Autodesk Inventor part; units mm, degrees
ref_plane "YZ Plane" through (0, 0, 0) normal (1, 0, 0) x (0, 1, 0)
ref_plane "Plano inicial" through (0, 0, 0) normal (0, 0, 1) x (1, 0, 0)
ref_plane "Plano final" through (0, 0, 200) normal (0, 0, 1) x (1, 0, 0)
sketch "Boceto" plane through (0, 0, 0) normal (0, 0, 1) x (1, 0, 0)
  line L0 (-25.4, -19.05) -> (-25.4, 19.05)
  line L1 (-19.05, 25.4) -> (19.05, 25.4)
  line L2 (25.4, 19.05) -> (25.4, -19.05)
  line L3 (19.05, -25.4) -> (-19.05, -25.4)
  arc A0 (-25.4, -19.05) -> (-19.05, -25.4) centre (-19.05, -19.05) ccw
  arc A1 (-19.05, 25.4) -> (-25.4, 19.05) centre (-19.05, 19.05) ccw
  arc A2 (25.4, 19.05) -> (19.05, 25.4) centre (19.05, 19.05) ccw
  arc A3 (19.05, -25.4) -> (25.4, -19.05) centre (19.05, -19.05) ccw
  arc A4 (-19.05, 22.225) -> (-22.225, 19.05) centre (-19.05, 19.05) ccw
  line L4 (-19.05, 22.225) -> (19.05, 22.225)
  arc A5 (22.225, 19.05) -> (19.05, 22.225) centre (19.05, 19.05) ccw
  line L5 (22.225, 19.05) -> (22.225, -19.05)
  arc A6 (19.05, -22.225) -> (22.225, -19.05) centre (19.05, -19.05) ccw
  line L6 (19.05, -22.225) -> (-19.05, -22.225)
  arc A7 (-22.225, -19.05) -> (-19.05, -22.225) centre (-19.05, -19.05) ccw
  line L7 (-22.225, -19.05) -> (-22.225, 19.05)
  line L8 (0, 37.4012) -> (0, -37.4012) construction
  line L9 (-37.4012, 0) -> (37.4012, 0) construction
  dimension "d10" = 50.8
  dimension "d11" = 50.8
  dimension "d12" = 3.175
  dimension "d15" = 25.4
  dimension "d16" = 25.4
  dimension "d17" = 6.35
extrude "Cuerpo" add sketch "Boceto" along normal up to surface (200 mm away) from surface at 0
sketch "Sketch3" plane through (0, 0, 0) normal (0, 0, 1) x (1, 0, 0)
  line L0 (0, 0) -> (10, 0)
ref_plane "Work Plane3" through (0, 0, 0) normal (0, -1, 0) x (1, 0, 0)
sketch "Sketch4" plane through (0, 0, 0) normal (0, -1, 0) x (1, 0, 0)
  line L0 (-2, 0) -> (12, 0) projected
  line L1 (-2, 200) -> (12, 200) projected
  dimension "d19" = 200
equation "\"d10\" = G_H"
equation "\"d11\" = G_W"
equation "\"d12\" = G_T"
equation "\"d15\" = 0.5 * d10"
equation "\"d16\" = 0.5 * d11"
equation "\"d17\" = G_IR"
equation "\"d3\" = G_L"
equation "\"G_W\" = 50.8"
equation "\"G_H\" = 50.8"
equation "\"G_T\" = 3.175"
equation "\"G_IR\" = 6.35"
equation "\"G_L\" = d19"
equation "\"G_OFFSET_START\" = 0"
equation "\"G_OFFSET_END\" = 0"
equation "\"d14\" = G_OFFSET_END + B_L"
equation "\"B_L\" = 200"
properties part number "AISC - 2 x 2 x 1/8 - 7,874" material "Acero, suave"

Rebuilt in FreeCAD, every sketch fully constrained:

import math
import FreeCAD as App
import Part
import Sketcher
from FreeCAD import Vector
Q = App.Units.Quantity

doc = App.newDocument("Part")
params = doc.addObject("Spreadsheet::Sheet", "Params")
for row, (alias, value) in enumerate([
    ("sketch1_radius", "0.25 in"),
    ("sketch1_radius2", "0.125 in"),
    ("pad1_length", "200 mm"),
], start=1):
    params.set(f"A{row}", alias)
    params.set(f"B{row}", "=" + value)
    params.setAlias(f"B{row}", alias)

body = doc.addObject("PartDesign::Body", "Body")

# Sketch on XY plane
sketch1 = body.newObject("Sketcher::SketchObject", "Sketch")
sketch1.AttachmentSupport = (doc.getObject("XY_Plane"), [""])
sketch1.MapMode = "FlatFace"
sketch1.addGeometry(Part.LineSegment(Vector(-25.4, 19.1, 0), Vector(-25.4, -19.1, 0)), False)
sketch1.addGeometry(Part.ArcOfCircle(Part.Circle(Vector(-19.1, -19.1, 0), Vector(0, 0, 1), 6.3), math.radians(180), math.radians(270)), False)
sketch1.addGeometry(Part.LineSegment(Vector(-19.1, -25.4, 0), Vector(19.1, -25.4, 0)), False)
sketch1.addGeometry(Part.ArcOfCircle(Part.Circle(Vector(19.1, -19.1, 0), Vector(0, 0, 1), 6.3), math.radians(-90), math.radians(0)), False)
sketch1.addGeometry(Part.LineSegment(Vector(25.4, -19.1, 0), Vector(25.4, 19.1, 0)), False)
sketch1.addGeometry(Part.ArcOfCircle(Part.Circle(Vector(19.1, 19.1, 0), Vector(0, 0, 1), 6.3), math.radians(0), math.radians(90)), False)
sketch1.addGeometry(Part.LineSegment(Vector(19.1, 25.4, 0), Vector(-19.1, 25.4, 0)), False)
sketch1.addGeometry(Part.ArcOfCircle(Part.Circle(Vector(-19.1, 19.1, 0), Vector(0, 0, 1), 6.3), math.radians(90), math.radians(180)), False)
sketch1.addGeometry(Part.ArcOfCircle(Part.Circle(Vector(-19.1, 19.1, 0), Vector(0, 0, 1), 3.2), math.radians(90), math.radians(180)), False)
sketch1.addGeometry(Part.LineSegment(Vector(-19.1, 22.2, 0), Vector(19.1, 22.2, 0)), False)
sketch1.addGeometry(Part.ArcOfCircle(Part.Circle(Vector(19.1, 19.1, 0), Vector(0, 0, 1), 3.2), math.radians(0), math.radians(90)), False)
sketch1.addGeometry(Part.LineSegment(Vector(22.2, 19.1, 0), Vector(22.2, -19.1, 0)), False)
sketch1.addGeometry(Part.ArcOfCircle(Part.Circle(Vector(19.1, -19.1, 0), Vector(0, 0, 1), 3.2), math.radians(-90), math.radians(0)), False)
sketch1.addGeometry(Part.LineSegment(Vector(19.1, -22.2, 0), Vector(-19.1, -22.2, 0)), False)
sketch1.addGeometry(Part.ArcOfCircle(Part.Circle(Vector(-19.1, -19.1, 0), Vector(0, 0, 1), 3.2), math.radians(180), math.radians(270)), False)
sketch1.addGeometry(Part.LineSegment(Vector(-22.2, -19.1, 0), Vector(-22.2, 19.1, 0)), False)
sketch1.addConstraint(Sketcher.Constraint("Tangent", 0, 2, 1, 1))
sketch1.addConstraint(Sketcher.Constraint("Tangent", 1, 2, 2, 1))
sketch1.addConstraint(Sketcher.Constraint("Tangent", 2, 2, 3, 1))
sketch1.addConstraint(Sketcher.Constraint("Tangent", 3, 2, 4, 1))
sketch1.addConstraint(Sketcher.Constraint("Tangent", 4, 2, 5, 1))
sketch1.addConstraint(Sketcher.Constraint("Tangent", 5, 2, 6, 1))
sketch1.addConstraint(Sketcher.Constraint("Tangent", 6, 2, 7, 1))
sketch1.addConstraint(Sketcher.Constraint("Tangent", 7, 2, 0, 1))
sketch1.addConstraint(Sketcher.Constraint("Tangent", 8, 1, 9, 1))
sketch1.addConstraint(Sketcher.Constraint("Tangent", 9, 2, 10, 2))
sketch1.addConstraint(Sketcher.Constraint("Tangent", 10, 1, 11, 1))
sketch1.addConstraint(Sketcher.Constraint("Tangent", 11, 2, 12, 2))
sketch1.addConstraint(Sketcher.Constraint("Tangent", 12, 1, 13, 1))
sketch1.addConstraint(Sketcher.Constraint("Tangent", 13, 2, 14, 2))
sketch1.addConstraint(Sketcher.Constraint("Tangent", 14, 1, 15, 1))
sketch1.addConstraint(Sketcher.Constraint("Tangent", 15, 2, 8, 2))
sketch1.addConstraint(Sketcher.Constraint("Vertical", 0))
sketch1.addConstraint(Sketcher.Constraint("Horizontal", 2))
sketch1.addConstraint(Sketcher.Constraint("Vertical", 4))
sketch1.addConstraint(Sketcher.Constraint("Horizontal", 6))
sketch1.addConstraint(Sketcher.Constraint("Horizontal", 9))
sketch1.addConstraint(Sketcher.Constraint("Vertical", 11))
sketch1.addConstraint(Sketcher.Constraint("Horizontal", 13))
sketch1.addConstraint(Sketcher.Constraint("Vertical", 15))
sketch1.addConstraint(Sketcher.Constraint("Coincident", 8, 3, 7, 3))
sketch1.addConstraint(Sketcher.Constraint("Coincident", 10, 3, 5, 3))
sketch1.addConstraint(Sketcher.Constraint("Coincident", 12, 3, 3, 3))
sketch1.addConstraint(Sketcher.Constraint("Equal", 1, 3))
sketch1.addConstraint(Sketcher.Constraint("Equal", 3, 5))
sketch1.addConstraint(Sketcher.Constraint("Equal", 5, 7))
sketch1.addConstraint(Sketcher.Constraint("Equal", 12, 14))
sketch1.addConstraint(Sketcher.Constraint("Symmetric", 1, 3, 5, 3, -1, 1))
sketch1.addConstraint(Sketcher.Constraint("Equal", 13, 0))
sketch1.addConstraint(Sketcher.Constraint("Radius", 1, Q("0.25 in")))
sketch1.addConstraint(Sketcher.Constraint("DistanceX", 0, 2, -1, 1, Q("1 in")))
sketch1.addConstraint(Sketcher.Constraint("Radius", 8, Q("0.125 in")))
sketch1.setExpression("Constraints[33]", "Params.sketch1_radius")
sketch1.setExpression("Constraints[35]", "Params.sketch1_radius2")
pad1 = body.newObject("PartDesign::Pad", "Pad")
pad1.Profile = sketch1
pad1.setExpression("Length", "Params.pad1_length")

doc.recompute()
